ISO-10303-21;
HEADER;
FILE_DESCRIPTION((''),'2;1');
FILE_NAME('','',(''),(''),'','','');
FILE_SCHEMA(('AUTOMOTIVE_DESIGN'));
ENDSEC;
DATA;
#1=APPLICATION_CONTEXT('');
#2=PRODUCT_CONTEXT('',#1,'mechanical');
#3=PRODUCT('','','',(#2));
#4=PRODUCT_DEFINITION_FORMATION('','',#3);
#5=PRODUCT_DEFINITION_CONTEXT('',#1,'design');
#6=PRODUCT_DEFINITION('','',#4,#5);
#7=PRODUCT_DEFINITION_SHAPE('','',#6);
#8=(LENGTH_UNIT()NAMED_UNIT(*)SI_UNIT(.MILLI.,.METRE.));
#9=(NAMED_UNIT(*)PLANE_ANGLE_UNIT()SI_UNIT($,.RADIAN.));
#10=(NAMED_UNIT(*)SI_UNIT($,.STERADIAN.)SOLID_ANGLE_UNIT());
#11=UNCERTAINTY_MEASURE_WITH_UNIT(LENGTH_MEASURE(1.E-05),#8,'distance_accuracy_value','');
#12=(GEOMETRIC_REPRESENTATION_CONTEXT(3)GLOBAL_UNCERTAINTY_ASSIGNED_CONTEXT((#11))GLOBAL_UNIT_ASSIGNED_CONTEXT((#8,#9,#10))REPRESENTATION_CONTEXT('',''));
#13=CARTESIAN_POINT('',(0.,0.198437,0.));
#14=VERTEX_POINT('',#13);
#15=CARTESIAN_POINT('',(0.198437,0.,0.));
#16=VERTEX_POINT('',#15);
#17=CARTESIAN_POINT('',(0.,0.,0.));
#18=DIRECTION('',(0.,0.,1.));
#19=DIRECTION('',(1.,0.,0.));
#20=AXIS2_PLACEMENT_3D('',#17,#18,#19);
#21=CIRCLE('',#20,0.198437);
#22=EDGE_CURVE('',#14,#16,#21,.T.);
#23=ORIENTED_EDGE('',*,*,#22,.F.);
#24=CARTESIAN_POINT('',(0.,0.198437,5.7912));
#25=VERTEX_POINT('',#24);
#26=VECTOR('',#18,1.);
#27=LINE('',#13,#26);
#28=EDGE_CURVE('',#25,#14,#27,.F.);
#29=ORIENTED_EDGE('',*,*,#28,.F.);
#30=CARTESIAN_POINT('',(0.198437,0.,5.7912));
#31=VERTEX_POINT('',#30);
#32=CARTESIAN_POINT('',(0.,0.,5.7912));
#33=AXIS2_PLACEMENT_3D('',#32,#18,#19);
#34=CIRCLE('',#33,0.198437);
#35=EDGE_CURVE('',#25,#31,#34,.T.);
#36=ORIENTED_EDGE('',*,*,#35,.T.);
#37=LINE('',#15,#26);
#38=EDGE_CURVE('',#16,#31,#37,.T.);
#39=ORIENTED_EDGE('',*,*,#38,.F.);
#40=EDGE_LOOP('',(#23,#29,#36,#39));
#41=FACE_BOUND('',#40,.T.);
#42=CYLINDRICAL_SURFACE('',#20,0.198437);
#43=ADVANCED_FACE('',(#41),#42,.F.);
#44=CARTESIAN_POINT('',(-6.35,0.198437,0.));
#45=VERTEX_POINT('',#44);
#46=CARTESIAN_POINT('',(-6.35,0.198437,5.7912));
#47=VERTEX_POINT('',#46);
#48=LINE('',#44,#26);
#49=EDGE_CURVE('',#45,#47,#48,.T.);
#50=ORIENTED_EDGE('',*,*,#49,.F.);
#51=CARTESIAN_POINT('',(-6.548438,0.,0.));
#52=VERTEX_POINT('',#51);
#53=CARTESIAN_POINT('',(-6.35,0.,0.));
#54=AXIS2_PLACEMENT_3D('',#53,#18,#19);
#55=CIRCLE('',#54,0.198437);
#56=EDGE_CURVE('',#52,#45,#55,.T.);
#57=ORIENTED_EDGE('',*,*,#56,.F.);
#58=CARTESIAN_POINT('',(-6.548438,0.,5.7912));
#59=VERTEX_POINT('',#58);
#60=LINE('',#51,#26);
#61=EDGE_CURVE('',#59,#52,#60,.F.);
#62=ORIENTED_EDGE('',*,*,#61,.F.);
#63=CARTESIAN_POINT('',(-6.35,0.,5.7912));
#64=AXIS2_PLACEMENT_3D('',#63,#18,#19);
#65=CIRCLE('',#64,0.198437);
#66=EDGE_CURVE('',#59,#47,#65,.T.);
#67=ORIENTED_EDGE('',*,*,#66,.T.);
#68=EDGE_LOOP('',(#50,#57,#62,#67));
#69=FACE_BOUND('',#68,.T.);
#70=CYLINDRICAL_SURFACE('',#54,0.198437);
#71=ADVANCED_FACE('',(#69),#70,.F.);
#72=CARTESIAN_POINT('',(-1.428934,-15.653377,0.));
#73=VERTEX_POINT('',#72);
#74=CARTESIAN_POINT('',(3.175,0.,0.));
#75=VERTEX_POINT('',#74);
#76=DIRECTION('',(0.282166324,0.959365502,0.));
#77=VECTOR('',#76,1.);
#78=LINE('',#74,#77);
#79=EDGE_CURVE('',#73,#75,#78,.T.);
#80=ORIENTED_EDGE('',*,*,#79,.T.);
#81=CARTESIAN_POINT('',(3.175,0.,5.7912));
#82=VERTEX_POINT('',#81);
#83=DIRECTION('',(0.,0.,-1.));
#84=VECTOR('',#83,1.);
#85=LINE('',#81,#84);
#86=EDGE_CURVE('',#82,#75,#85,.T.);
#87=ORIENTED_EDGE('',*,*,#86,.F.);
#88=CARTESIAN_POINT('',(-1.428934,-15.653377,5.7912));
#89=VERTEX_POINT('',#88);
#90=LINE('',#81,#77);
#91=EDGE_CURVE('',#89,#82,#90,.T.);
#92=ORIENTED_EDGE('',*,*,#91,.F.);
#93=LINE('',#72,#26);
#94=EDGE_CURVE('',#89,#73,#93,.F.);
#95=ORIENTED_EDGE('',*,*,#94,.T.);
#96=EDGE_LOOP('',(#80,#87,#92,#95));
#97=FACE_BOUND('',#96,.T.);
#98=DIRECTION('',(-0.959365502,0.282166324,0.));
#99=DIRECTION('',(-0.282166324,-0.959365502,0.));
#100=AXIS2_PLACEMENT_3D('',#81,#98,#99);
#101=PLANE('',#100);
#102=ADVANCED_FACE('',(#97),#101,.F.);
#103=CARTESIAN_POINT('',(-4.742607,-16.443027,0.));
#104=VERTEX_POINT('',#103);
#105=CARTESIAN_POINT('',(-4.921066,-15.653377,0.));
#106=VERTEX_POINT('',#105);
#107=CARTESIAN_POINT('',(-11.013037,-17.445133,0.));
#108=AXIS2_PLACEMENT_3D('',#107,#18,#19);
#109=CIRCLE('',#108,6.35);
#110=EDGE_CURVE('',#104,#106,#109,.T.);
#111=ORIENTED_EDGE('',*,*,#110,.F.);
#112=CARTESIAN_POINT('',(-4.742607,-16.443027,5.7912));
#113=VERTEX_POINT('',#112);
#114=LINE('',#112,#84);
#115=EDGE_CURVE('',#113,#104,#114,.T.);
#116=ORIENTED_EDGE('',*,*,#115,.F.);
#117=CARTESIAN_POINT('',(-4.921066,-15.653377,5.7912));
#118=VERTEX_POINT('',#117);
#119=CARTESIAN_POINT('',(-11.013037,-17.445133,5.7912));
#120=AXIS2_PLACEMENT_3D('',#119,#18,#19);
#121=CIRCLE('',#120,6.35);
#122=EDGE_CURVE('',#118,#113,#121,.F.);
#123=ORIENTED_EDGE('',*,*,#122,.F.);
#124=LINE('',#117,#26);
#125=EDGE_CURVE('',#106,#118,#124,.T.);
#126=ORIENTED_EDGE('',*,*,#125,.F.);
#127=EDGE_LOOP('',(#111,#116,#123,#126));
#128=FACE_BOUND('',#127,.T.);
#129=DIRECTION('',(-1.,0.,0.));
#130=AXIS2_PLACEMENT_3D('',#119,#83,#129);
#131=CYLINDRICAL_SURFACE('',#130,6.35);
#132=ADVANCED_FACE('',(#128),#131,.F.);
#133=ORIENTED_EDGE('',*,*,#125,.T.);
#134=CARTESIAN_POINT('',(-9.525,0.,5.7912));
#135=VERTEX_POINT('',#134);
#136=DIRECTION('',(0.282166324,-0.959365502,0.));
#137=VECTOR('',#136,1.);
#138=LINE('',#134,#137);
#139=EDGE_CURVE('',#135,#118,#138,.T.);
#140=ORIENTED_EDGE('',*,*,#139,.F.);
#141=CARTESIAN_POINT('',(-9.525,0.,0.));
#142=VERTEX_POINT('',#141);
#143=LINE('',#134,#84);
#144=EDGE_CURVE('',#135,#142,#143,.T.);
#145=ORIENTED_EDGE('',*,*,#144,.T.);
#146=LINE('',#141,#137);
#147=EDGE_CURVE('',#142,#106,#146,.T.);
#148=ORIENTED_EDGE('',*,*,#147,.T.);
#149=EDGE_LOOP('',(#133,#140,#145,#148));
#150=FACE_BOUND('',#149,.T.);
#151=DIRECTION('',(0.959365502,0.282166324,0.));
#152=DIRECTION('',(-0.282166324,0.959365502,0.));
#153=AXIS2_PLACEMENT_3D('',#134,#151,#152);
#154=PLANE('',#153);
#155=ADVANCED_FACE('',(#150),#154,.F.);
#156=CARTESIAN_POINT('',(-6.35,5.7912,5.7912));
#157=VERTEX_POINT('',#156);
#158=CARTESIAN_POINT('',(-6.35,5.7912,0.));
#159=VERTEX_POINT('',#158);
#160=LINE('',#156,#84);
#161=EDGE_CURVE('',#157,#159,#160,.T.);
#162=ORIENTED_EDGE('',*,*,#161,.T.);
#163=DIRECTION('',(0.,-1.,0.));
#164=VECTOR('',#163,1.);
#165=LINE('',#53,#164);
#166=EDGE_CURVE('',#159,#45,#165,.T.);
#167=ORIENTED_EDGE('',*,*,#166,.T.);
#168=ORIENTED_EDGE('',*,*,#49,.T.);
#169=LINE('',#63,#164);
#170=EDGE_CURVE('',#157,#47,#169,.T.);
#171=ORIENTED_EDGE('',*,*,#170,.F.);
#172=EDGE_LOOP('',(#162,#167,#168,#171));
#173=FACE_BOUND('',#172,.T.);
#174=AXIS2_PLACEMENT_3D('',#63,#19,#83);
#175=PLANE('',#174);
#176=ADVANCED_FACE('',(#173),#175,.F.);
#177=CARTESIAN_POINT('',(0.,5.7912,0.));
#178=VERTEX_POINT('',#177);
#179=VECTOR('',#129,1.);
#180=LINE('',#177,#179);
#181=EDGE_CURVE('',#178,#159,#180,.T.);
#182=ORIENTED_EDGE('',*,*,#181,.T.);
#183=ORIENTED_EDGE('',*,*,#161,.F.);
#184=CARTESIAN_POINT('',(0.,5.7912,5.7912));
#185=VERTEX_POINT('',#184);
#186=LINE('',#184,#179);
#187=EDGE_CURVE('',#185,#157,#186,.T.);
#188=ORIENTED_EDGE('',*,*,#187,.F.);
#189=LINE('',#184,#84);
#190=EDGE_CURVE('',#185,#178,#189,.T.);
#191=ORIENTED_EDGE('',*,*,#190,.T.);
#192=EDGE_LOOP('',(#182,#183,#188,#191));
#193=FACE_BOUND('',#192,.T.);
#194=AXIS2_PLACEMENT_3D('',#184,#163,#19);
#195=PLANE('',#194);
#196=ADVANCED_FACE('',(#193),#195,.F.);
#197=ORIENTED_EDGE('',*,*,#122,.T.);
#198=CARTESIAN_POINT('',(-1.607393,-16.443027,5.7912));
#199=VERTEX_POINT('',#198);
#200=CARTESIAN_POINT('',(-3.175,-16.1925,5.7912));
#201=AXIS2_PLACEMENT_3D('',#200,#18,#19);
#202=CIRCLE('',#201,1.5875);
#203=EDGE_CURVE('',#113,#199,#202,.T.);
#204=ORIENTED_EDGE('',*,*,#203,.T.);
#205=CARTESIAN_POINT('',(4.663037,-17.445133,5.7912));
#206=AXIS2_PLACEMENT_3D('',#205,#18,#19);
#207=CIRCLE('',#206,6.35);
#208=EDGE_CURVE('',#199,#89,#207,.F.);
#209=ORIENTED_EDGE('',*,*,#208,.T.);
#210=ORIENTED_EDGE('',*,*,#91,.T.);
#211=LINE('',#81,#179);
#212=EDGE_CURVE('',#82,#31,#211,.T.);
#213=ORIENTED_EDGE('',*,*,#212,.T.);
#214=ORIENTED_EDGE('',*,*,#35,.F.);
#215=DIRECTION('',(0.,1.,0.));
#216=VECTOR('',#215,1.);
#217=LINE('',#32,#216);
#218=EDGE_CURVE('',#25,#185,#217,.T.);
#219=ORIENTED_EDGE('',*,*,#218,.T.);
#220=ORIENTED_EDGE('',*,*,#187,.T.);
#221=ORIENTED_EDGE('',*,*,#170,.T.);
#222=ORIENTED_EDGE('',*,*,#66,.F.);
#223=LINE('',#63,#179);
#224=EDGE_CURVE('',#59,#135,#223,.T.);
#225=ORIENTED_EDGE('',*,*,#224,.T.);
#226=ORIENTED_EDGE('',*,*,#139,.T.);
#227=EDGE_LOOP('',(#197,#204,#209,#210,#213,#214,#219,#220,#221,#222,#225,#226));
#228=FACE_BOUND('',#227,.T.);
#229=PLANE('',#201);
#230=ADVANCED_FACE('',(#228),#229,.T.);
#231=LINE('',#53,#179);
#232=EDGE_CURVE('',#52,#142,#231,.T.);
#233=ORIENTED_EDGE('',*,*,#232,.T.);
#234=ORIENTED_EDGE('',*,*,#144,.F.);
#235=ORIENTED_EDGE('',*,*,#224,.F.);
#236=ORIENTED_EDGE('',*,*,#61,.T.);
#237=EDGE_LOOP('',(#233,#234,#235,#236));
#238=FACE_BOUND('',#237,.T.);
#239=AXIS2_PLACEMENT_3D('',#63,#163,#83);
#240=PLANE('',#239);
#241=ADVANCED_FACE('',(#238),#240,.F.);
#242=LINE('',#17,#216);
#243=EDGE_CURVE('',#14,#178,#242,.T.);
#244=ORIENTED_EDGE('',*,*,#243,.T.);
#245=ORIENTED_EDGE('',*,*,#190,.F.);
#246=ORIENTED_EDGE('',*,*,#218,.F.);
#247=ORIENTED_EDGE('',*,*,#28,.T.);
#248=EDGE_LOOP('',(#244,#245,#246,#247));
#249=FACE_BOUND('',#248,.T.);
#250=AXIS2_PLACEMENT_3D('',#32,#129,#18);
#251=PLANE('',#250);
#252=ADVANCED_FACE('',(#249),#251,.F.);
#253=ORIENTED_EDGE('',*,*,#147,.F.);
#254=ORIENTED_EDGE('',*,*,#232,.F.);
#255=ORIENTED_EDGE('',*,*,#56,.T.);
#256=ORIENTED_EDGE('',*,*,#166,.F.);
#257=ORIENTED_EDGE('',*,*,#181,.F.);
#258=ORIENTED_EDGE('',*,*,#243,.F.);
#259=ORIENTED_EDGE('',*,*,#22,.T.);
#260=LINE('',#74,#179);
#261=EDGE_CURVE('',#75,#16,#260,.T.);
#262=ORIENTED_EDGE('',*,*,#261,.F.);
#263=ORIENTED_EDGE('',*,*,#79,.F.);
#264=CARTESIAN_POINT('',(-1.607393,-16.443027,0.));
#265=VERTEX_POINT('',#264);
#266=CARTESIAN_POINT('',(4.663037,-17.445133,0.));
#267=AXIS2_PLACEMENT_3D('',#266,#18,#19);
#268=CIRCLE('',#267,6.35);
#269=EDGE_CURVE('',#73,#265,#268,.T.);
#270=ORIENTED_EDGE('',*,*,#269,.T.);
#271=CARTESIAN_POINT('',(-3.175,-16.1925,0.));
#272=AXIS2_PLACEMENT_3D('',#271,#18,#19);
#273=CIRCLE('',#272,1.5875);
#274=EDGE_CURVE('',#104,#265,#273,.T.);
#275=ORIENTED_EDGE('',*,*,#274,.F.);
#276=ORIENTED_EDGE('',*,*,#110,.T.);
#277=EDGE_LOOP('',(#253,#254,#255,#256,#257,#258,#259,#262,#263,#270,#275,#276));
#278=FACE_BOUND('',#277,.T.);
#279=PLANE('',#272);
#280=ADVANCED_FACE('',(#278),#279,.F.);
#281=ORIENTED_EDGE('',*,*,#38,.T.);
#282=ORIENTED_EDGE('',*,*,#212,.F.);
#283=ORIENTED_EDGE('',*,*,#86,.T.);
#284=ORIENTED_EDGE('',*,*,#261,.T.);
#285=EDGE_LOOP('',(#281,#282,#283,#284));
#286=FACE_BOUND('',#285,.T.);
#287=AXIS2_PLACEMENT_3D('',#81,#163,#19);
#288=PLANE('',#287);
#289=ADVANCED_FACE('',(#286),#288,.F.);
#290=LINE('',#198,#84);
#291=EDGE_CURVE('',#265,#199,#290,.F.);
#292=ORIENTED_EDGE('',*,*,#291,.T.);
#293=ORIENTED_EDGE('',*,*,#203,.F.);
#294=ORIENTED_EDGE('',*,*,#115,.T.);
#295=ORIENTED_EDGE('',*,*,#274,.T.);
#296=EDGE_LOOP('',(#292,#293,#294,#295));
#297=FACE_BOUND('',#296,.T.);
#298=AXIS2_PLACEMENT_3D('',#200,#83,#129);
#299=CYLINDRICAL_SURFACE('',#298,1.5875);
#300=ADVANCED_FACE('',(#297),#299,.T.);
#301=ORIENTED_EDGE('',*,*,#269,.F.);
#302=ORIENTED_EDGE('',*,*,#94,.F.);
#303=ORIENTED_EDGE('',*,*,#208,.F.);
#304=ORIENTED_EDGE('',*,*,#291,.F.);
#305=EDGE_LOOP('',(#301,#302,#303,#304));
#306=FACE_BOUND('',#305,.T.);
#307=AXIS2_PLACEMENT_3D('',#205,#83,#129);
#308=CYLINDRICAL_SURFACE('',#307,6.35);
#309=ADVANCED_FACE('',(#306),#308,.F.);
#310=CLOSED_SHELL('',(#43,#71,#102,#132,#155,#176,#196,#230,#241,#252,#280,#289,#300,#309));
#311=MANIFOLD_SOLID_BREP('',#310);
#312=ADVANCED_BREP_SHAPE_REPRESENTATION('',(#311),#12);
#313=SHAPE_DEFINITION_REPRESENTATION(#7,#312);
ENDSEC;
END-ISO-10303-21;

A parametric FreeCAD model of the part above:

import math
import FreeCAD as App
import Part
import Sketcher
from FreeCAD import Vector
Q = App.Units.Quantity


def edges_at(feature, points):
    """Names of the edges that pass closest to the given points."""
    edges = feature.Shape.Edges
    near = lambda p: min(range(len(edges)), key=lambda i: edges[i].distToShape(Part.Vertex(*p))[0])
    return sorted({f"Edge{near(p) + 1}" for p in points})

doc = App.newDocument("Part")
body = doc.addObject("PartDesign::Body", "Body")

sketch1 = body.newObject("Sketcher::SketchObject", "Sketch")
sketch1.AttachmentSupport = (doc.getObject("XY_Plane"), [""])
sketch1.MapMode = "FlatFace"
sketch1.addGeometry(Part.LineSegment(Vector(-6.3, 0, 0), Vector(-9.5, 0, 0)), False)
sketch1.addGeometry(Part.LineSegment(Vector(-9.5, 0, 0), Vector(-4.8, -16.2, 0)), False)
sketch1.addGeometry(Part.ArcOfCircle(Part.Circle(Vector(-3.2, -16.2, 0), Vector(0, 0, 1), 1.6), math.radians(180), math.radians(360)), False)
sketch1.addGeometry(Part.LineSegment(Vector(-1.6, -16.2, 0), Vector(3.2, 0, 0)), False)
sketch1.addGeometry(Part.LineSegment(Vector(3.2, 0, 0), Vector(0, 0, 0)), False)
sketch1.addGeometry(Part.LineSegment(Vector(0, 0, 0), Vector(0, 5.8, 0)), False)
sketch1.addGeometry(Part.LineSegment(Vector(0, 5.8, 0), Vector(-6.3, 5.8, 0)), False)
sketch1.addGeometry(Part.LineSegment(Vector(-6.3, 5.8, 0), Vector(-6.3, 0, 0)), False)
sketch1.addConstraint(Sketcher.Constraint("Coincident", 0, 2, 1, 1))
sketch1.addConstraint(Sketcher.Constraint("Coincident", 1, 2, 2, 1))
sketch1.addConstraint(Sketcher.Constraint("Coincident", 2, 2, 3, 1))
sketch1.addConstraint(Sketcher.Constraint("Coincident", 3, 2, 4, 1))
sketch1.addConstraint(Sketcher.Constraint("Coincident", 4, 2, 5, 1))
sketch1.addConstraint(Sketcher.Constraint("Coincident", 5, 2, 6, 1))
sketch1.addConstraint(Sketcher.Constraint("Coincident", 6, 2, 7, 1))
sketch1.addConstraint(Sketcher.Constraint("Coincident", 7, 2, 0, 1))
sketch1.addConstraint(Sketcher.Constraint("Horizontal", 0))
sketch1.addConstraint(Sketcher.Constraint("Horizontal", 4))
sketch1.addConstraint(Sketcher.Constraint("Vertical", 5))
sketch1.addConstraint(Sketcher.Constraint("Horizontal", 6))
sketch1.addConstraint(Sketcher.Constraint("Vertical", 7))
sketch1.addConstraint(Sketcher.Constraint("Coincident", 4, 2, -1, 1))
sketch1.addConstraint(Sketcher.Constraint("PointOnObject", 0, 2, -1))
sketch1.addConstraint(Sketcher.Constraint("Horizontal", 2, 3, 1, 2))
sketch1.addConstraint(Sketcher.Constraint("Horizontal", 1, 2, 2, 2))
sketch1.addConstraint(Sketcher.Constraint("Equal", 0, 4))
sketch1.addConstraint(Sketcher.Constraint("Equal", 1, 3))
sketch1.addConstraint(Sketcher.Constraint("Radius", 2, Q("0.0625 in")))
sketch1.addConstraint(Sketcher.Constraint("DistanceX", 6, 2, 6, 1, Q("0.25 in")))
sketch1.addConstraint(Sketcher.Constraint("DistanceX", 0, 2, 3, 2, Q("0.5 in")))
sketch1.addConstraint(Sketcher.Constraint("DistanceY", 5, 1, 5, 2, Q("0.228 in")))
sketch1.addConstraint(Sketcher.Constraint("DistanceY", 2, 3, -1, 1, Q("0.6375 in")))
pad1 = body.newObject("PartDesign::Pad", "Pad")
pad1.Profile = sketch1
pad1.Length = Q("0.228 in")
doc.recompute()

fillet = body.newObject("PartDesign::Fillet", "Fillet")
fillet.Base = (pad1, edges_at(pad1, [(-1.587, -16.192, 2.896), (-4.763, -16.192, 2.896)]))
fillet.Radius = Q("0.25 in")

sketch2 = body.newObject("Sketcher::SketchObject", "Sketch001")
sketch2.AttachmentSupport = (doc.getObject("XY_Plane"), [""])
sketch2.MapMode = "FlatFace"
sketch2.AttachmentOffset = App.Placement(Vector(0, 0, 0.228 * 25.4), App.Rotation())
sketch2.addGeometry(Part.Circle(Vector(-6.35, 0, 0), Vector(0, 0, 1), 0.2), False)
sketch2.addGeometry(Part.Circle(Vector(0, 0, 0), Vector(0, 0, 1), 0.2), False)
sketch2.addConstraint(Sketcher.Constraint("Coincident", 1, 3, -1, 1))
sketch2.addConstraint(Sketcher.Constraint("Equal", 0, 1))
sketch2.addConstraint(Sketcher.Constraint("PointOnObject", 0, 3, -1))
sketch2.addConstraint(Sketcher.Constraint("Diameter", 0, Q("0.015625 in")))
sketch2.addConstraint(Sketcher.Constraint("DistanceX", 0, 3, -1, 1, Q("0.25 in")))
pocket1 = body.newObject("PartDesign::Pocket", "Pocket")
pocket1.Profile = sketch2
pocket1.Type = "ThroughAll"

doc.recompute()
